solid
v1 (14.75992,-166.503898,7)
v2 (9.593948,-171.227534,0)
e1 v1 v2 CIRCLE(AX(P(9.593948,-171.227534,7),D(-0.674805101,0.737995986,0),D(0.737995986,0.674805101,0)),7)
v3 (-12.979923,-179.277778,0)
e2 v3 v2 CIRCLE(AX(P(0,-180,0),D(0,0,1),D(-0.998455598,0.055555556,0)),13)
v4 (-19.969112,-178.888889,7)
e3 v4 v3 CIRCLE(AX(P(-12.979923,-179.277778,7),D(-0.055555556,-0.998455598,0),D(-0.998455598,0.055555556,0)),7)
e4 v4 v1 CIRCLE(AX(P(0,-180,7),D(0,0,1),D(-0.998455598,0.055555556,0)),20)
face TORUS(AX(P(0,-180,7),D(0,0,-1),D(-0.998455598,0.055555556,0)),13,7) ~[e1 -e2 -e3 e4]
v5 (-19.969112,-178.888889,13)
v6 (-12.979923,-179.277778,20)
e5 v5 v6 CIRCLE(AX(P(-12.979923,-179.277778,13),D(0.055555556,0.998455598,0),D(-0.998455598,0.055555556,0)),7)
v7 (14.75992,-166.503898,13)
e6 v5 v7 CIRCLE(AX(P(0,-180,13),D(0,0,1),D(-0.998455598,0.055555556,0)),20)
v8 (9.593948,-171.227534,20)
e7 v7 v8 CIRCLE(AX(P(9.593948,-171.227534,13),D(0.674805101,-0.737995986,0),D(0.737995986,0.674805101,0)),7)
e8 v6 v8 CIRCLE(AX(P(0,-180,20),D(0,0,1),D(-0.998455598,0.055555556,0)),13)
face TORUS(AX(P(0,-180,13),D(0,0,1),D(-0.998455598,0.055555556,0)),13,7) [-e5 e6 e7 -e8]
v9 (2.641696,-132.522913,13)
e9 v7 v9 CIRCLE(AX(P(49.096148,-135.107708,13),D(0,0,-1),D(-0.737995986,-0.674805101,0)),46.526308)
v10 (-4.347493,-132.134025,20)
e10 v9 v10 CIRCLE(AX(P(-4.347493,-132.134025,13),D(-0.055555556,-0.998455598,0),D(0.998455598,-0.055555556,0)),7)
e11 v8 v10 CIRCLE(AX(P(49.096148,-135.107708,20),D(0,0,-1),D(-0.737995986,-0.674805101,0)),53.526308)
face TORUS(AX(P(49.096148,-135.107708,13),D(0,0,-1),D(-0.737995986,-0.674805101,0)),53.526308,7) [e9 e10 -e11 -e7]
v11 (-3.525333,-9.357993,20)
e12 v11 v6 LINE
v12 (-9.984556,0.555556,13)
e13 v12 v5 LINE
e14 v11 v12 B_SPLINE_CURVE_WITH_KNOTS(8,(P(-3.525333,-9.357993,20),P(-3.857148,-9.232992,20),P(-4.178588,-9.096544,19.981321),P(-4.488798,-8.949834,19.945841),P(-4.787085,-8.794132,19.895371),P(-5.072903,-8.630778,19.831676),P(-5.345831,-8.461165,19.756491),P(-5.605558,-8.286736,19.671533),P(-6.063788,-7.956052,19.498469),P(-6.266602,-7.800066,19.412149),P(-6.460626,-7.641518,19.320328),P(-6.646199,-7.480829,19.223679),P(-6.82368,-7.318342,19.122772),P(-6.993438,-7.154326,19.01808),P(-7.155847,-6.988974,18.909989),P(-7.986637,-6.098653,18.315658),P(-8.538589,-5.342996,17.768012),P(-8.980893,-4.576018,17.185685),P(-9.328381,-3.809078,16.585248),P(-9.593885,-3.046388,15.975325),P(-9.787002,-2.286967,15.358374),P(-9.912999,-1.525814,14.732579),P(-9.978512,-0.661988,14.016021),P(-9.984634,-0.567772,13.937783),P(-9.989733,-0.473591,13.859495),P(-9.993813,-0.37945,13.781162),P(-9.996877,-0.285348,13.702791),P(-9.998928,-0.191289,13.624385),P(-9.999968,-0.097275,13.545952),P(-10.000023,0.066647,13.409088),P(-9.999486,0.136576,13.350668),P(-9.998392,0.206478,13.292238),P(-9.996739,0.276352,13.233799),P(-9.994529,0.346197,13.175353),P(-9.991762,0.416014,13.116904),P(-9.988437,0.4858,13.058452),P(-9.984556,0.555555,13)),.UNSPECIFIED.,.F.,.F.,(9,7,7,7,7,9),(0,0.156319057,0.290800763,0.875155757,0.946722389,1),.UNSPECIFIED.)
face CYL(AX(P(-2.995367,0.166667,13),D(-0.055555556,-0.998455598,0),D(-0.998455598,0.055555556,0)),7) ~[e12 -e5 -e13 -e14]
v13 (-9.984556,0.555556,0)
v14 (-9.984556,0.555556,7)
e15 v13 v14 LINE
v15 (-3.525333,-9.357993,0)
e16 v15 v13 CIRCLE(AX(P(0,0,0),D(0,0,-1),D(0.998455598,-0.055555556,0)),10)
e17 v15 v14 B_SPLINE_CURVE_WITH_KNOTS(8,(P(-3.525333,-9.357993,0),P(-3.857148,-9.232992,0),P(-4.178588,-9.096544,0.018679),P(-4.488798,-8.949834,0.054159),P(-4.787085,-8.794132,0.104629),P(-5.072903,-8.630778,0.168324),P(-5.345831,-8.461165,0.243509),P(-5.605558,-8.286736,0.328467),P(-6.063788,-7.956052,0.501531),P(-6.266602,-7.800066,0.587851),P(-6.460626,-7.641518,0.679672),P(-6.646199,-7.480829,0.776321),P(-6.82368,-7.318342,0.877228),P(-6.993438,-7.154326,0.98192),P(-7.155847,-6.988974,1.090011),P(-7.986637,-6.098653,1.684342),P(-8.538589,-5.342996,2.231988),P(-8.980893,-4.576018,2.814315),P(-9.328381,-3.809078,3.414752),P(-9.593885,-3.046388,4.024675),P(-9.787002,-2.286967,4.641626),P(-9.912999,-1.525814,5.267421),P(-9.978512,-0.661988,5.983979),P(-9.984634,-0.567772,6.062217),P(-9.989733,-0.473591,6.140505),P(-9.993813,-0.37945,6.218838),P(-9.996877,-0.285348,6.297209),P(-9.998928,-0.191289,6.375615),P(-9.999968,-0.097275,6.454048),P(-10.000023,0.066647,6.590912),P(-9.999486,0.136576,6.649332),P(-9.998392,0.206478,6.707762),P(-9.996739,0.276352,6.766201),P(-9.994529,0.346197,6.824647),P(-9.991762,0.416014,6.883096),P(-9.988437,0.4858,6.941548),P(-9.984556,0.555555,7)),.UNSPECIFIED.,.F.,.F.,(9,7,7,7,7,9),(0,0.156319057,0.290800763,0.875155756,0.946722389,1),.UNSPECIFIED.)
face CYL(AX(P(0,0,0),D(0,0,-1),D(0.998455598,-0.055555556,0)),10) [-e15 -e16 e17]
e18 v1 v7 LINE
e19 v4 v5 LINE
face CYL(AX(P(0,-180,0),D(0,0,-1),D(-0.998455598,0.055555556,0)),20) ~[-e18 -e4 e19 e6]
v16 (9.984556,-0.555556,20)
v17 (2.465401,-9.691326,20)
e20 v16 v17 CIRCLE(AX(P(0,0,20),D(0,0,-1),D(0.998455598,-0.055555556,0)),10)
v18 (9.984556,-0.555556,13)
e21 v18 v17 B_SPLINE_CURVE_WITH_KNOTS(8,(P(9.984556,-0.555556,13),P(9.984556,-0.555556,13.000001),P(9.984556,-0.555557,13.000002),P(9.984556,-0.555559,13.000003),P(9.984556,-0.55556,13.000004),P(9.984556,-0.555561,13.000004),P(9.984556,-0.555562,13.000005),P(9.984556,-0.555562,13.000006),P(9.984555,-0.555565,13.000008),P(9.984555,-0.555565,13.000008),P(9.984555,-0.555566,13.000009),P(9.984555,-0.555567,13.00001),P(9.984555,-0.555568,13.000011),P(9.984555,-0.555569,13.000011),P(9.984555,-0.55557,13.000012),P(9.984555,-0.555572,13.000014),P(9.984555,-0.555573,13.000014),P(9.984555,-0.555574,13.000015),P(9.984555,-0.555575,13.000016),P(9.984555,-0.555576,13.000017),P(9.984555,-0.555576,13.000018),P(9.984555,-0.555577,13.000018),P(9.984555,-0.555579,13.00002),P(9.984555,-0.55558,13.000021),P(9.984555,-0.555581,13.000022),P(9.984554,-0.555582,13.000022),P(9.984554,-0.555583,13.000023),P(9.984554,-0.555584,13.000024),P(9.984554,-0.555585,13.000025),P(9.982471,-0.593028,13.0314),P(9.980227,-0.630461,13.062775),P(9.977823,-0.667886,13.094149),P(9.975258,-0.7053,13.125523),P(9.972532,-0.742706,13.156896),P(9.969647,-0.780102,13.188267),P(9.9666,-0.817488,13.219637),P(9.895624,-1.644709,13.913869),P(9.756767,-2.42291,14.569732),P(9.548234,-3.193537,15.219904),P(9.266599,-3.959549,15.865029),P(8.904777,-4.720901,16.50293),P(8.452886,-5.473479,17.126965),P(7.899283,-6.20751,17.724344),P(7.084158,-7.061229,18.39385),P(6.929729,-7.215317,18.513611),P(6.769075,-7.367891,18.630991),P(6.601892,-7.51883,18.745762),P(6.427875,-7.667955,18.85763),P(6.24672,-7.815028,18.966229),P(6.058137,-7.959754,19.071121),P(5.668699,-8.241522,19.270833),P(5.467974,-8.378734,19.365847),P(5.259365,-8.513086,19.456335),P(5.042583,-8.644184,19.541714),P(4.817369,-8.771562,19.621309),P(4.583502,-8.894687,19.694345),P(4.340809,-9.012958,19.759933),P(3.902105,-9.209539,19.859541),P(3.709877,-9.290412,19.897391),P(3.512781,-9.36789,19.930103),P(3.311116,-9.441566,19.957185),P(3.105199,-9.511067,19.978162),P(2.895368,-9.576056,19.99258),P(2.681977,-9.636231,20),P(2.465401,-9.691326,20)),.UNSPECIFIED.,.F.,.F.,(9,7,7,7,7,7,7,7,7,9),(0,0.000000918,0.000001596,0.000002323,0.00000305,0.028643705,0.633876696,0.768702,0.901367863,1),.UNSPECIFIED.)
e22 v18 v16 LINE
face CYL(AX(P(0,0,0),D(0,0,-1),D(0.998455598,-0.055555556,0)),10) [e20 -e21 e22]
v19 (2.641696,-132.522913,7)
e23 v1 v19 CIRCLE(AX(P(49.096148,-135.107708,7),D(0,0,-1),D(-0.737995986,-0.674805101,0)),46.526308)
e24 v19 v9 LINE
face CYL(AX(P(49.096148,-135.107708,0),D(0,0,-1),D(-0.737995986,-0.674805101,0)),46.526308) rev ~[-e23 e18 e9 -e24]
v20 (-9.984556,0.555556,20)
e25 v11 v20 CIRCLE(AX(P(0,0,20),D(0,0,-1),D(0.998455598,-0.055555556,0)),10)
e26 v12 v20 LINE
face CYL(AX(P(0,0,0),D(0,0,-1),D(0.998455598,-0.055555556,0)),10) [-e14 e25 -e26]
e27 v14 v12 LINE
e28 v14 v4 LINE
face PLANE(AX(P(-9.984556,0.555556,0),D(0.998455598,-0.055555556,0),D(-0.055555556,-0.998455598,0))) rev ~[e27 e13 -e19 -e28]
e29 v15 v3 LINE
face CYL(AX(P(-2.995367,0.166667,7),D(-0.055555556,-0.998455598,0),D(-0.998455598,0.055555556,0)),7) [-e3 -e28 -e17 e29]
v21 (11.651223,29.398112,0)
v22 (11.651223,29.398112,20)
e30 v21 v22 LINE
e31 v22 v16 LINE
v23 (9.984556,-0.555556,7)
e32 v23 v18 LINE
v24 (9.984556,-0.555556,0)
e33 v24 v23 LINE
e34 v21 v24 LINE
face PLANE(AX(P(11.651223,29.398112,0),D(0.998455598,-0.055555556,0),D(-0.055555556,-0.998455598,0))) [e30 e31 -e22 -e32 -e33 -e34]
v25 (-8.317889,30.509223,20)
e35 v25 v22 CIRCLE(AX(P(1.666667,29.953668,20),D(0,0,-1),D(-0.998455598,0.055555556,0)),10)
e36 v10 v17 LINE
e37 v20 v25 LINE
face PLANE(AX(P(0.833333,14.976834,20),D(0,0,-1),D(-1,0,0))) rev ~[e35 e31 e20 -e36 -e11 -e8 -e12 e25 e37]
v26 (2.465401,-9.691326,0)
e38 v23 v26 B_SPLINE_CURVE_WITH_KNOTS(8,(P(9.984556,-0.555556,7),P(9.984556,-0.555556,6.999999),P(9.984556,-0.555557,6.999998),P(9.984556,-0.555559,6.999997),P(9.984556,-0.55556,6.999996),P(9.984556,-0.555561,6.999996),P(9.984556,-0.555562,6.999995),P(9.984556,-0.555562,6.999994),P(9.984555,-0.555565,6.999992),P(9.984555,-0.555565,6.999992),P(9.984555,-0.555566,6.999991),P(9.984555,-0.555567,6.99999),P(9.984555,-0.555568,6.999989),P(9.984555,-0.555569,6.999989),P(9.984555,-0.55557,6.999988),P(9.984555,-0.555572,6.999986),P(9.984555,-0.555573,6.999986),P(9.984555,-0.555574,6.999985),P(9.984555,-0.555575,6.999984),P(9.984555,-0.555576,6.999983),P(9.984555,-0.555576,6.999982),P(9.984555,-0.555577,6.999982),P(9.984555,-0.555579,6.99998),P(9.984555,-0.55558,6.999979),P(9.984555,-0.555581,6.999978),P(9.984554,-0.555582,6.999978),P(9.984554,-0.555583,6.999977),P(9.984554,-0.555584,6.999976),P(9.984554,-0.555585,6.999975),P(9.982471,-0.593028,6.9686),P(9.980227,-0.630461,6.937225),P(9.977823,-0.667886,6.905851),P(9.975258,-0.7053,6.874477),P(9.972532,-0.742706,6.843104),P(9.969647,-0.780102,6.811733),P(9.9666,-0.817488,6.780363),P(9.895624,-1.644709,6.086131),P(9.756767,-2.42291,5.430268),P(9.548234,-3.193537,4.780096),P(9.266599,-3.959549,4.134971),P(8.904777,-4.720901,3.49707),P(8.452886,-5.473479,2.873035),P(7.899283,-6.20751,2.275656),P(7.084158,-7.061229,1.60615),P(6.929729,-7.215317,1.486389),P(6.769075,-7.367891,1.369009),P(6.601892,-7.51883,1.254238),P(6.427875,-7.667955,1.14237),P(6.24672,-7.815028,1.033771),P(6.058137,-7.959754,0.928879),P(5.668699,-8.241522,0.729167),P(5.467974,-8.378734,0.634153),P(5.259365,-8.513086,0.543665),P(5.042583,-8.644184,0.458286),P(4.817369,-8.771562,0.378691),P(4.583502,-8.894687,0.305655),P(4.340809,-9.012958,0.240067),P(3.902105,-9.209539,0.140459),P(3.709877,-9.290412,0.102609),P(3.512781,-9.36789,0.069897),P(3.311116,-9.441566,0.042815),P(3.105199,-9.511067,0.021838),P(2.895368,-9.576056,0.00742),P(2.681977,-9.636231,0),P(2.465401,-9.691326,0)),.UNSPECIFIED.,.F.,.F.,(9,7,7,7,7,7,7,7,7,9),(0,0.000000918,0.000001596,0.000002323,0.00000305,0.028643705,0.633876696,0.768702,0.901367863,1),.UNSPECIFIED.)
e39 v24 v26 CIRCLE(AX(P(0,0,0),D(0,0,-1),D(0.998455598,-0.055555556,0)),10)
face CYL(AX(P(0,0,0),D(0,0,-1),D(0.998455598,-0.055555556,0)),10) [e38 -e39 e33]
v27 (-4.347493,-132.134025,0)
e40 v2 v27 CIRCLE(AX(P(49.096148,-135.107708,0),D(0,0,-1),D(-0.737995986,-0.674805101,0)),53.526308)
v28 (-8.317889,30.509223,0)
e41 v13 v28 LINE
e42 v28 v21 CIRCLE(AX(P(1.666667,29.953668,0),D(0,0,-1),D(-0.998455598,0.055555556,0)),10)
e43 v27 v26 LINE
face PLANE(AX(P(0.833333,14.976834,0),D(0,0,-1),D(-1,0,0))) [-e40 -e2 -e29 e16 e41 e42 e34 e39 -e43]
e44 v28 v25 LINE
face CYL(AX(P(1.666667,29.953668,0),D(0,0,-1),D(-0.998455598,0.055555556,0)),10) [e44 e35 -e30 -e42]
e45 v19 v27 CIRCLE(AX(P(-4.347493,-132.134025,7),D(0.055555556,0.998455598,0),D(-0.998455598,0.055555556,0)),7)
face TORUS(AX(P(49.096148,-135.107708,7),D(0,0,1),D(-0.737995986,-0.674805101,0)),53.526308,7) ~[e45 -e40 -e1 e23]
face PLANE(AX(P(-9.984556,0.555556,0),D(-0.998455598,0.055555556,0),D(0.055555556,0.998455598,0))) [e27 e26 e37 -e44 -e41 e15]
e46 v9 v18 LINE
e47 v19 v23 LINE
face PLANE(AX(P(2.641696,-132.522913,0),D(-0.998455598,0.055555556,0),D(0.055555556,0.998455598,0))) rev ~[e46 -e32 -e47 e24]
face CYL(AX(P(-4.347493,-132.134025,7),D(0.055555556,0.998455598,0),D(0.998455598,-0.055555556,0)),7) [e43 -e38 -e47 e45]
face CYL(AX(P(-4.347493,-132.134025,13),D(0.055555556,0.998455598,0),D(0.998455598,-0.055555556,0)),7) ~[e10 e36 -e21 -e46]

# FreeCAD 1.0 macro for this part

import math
import FreeCAD as App
import Part
import Sketcher
Q = App.Units.Quantity


def edges_at(feature, points):
    """Names of the edges that pass closest to the given points."""
    edges = feature.Shape.Edges
    near = lambda p: min(range(len(edges)), key=lambda i: edges[i].distToShape(Part.Vertex(*p))[0])
    return sorted({f"Edge{near(p) + 1}" for p in points})

doc = App.newDocument("Part")
body = doc.addObject("PartDesign::Body", "Body")

sketch1 = doc.addObject("Sketcher::SketchObject", "Sketch")
body.addObject(sketch1)
sketch1.AttachmentSupport = (doc.XY_Plane, [""])
sketch1.MapMode = "FlatFace"
sketch1.addGeometry([
    Part.LineSegment(App.Vector(-10, 1, 0), App.Vector(-20, -179, 0)),
    Part.ArcOfCircle(Part.Circle(App.Vector(0, -180, 0), App.Vector(0, 0, 1), 20), math.radians(177), math.radians(402)),
    Part.ArcOfCircle(Part.Circle(App.Vector(49, -135, 0), App.Vector(0, 0, 1), 47), math.radians(177), math.radians(222)),
    Part.LineSegment(App.Vector(3, -133, 0), App.Vector(10, -1, 0)),
    Part.ArcOfCircle(Part.Circle(App.Vector(0, 0, 0), App.Vector(0, 0, 1), 10), math.radians(-3), math.radians(177)),
], False)
sketch1.addConstraint([
    Sketcher.Constraint("Tangent", 0, 2, 1, 1),
    Sketcher.Constraint("Tangent", 1, 2, 2, 2),
    Sketcher.Constraint("Tangent", 2, 1, 3, 1),
    Sketcher.Constraint("Tangent", 3, 2, 4, 1),
    Sketcher.Constraint("Tangent", 4, 2, 0, 1),
    Sketcher.Constraint("Coincident", 4, 3, -1, 1),
    Sketcher.Constraint("PointOnObject", 1, 3, -2),
    Sketcher.Constraint("Parallel", 0, 3),
    Sketcher.Constraint("Radius", 1, Q("20 mm")),
    Sketcher.Constraint("Radius", 4, Q("10 mm")),
    Sketcher.Constraint("DistanceY", 1, 3, -1, 1, Q("180 mm")),
    Sketcher.Constraint("Radius", 2, Q("46.526308 mm")),
])
pad1 = doc.addObject("PartDesign::Pad", "Pad")
body.addObject(pad1)
pad1.Profile = sketch1
pad1.Length = 20
doc.recompute()

fillet = doc.addObject("PartDesign::Fillet", "Fillet")
body.addObject(fillet)
fillet.Base = (pad1, edges_at(pad1, [
    (6.313, -66.539, 20),
    (0.556, 9.985, 20),
    (-14.977, -89.167, 20),
    (6.718, -198.838, 20),
    (-14.977, -89.167, 0),
    (0.556, 9.985, 0),
    (6.313, -66.539, 0),
    (5.273, -150.736, 0),
    (6.718, -198.838, 0),
    (5.273, -150.736, 20),
]))
fillet.Radius = 7

sketch2 = doc.addObject("Sketcher::SketchObject", "Sketch001")
body.addObject(sketch2)
sketch2.AttachmentSupport = (doc.XY_Plane, [""])
sketch2.MapMode = "FlatFace"
sketch2.addGeometry([
    Part.LineSegment(App.Vector(-8, 31, 0), App.Vector(-10, 1, 0)),
    Part.ArcOfCircle(Part.Circle(App.Vector(0, 0, 0), App.Vector(0, 0, 1), 10), math.radians(177), math.radians(357)),
    Part.LineSegment(App.Vector(10, -1, 0), App.Vector(12, 29, 0)),
    Part.ArcOfCircle(Part.Circle(App.Vector(2, 30, 0), App.Vector(0, 0, 1), 10), math.radians(-3), math.radians(177)),
], False)
sketch2.addConstraint([
    Sketcher.Constraint("Tangent", 0, 2, 1, 1),
    Sketcher.Constraint("Tangent", 1, 2, 2, 1),
    Sketcher.Constraint("Tangent", 2, 2, 3, 1),
    Sketcher.Constraint("Tangent", 3, 2, 0, 1),
    Sketcher.Constraint("Coincident", 1, 3, -1, 1),
    Sketcher.Constraint("Equal", 1, 3),
    Sketcher.Constraint("Radius", 1, Q("10 mm")),
    Sketcher.Constraint("Distance", 0, Q("30 mm")),
    Sketcher.Constraint("DistanceX", 3, 2, -1, 1, Q("8.317889 mm")),
])
pad2 = doc.addObject("PartDesign::Pad", "Pad001")
body.addObject(pad2)
pad2.Profile = sketch2
pad2.Length = 20

doc.recompute()
